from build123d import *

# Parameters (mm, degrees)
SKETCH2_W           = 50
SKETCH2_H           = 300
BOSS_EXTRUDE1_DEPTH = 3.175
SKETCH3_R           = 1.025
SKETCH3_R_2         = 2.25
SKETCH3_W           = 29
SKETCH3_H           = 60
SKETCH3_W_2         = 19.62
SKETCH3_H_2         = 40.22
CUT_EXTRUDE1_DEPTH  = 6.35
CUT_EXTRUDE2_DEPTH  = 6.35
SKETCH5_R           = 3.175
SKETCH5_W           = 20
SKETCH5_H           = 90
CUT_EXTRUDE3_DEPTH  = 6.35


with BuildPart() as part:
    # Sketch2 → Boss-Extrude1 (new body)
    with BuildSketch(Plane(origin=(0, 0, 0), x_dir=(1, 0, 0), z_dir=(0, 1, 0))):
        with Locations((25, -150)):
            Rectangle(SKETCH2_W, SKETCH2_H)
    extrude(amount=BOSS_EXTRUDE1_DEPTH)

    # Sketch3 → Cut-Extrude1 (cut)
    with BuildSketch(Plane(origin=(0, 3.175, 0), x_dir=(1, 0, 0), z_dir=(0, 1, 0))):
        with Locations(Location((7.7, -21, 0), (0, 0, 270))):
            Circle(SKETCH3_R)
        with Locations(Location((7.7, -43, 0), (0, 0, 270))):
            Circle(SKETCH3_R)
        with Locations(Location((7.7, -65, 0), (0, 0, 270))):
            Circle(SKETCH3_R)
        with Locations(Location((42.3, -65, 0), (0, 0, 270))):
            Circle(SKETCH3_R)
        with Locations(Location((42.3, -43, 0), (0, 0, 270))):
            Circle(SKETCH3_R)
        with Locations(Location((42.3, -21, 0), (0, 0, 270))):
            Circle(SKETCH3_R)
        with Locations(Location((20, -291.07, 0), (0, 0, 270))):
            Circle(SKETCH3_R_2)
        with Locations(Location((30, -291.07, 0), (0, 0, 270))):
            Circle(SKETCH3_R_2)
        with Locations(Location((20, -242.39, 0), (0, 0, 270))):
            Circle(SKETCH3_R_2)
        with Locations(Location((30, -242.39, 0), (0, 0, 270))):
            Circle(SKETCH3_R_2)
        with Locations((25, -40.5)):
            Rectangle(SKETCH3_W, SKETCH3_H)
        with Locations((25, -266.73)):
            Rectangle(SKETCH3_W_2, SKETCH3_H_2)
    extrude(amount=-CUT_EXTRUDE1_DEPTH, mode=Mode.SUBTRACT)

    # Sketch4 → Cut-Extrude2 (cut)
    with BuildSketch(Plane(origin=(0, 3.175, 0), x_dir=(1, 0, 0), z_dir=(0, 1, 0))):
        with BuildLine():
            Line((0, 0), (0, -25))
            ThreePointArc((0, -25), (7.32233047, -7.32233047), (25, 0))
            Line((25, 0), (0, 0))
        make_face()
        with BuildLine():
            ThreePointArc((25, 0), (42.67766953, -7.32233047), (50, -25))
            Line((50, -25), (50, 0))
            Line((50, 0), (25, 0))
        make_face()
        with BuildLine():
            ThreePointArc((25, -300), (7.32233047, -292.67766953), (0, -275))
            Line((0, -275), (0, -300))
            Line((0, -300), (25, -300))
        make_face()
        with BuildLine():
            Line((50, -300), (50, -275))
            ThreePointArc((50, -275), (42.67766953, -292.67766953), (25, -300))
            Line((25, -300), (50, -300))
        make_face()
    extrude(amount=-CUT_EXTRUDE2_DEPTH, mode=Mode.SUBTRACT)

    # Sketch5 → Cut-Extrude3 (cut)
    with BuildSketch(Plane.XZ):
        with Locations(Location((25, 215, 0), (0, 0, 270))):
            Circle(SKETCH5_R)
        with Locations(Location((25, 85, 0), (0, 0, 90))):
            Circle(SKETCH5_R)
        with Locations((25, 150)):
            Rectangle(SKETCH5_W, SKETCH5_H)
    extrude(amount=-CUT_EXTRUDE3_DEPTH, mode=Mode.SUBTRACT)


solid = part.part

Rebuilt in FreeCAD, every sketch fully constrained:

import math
import FreeCAD as App
import Part
import Sketcher

V = App.Vector

doc = App.newDocument("Part")
body = doc.addObject("PartDesign::Body", "Body")

sketch1 = doc.addObject("Sketcher::SketchObject", "Sketch")
body.addObject(sketch1)
sketch1.AttachmentSupport = (doc.XZ_Plane, [""])
sketch1.MapMode = "FlatFace"
sketch1.addGeometry([
    Part.LineSegment(V(0, 0, 0), V(0, 300, 0)),
    Part.LineSegment(V(0, 300, 0), V(50, 300, 0)),
    Part.LineSegment(V(50, 300, 0), V(50, 0, 0)),
    Part.LineSegment(V(50, 0, 0), V(0, 0, 0)),
], False)
sketch1.addConstraint([
    Sketcher.Constraint("Coincident", 0, 2, 1, 1),
    Sketcher.Constraint("Coincident", 1, 2, 2, 1),
    Sketcher.Constraint("Coincident", 2, 2, 3, 1),
    Sketcher.Constraint("Coincident", 3, 2, 0, 1),
    Sketcher.Constraint("Vertical", 0),
    Sketcher.Constraint("Horizontal", 1),
    Sketcher.Constraint("Vertical", 2),
    Sketcher.Constraint("Horizontal", 3),
    Sketcher.Constraint("Coincident", 3, 2, -1, 1),
    Sketcher.Constraint("DistanceX", 1, 1, 1, 2, 50.0),
    Sketcher.Constraint("DistanceY", 0, 1, 0, 2, 300.0),
])
pad1 = doc.addObject("PartDesign::Pad", "Pad")
body.addObject(pad1)
pad1.Profile = sketch1
pad1.Length = 3.175
pad1.Reversed = True

sketch2 = doc.addObject("Sketcher::SketchObject", "Sketch001")
body.addObject(sketch2)
sketch2.AttachmentSupport = (doc.XZ_Plane, [""])
sketch2.MapMode = "FlatFace"
sketch2.AttachmentOffset = App.Placement(V(0, 0, -3.175), App.Rotation())
sketch2.addGeometry([
    Part.Circle(V(7.7, 21, 0), V(0, 0, 1), 1),
    Part.Circle(V(7.7, 43, 0), V(0, 0, 1), 1),
    Part.Circle(V(7.7, 65, 0), V(0, 0, 1), 1),
    Part.Circle(V(42.3, 65, 0), V(0, 0, 1), 1),
    Part.Circle(V(42.3, 43, 0), V(0, 0, 1), 1),
    Part.Circle(V(42.3, 21, 0), V(0, 0, 1), 1),
    Part.Circle(V(20, 291.1, 0), V(0, 0, 1), 2.2),
    Part.Circle(V(30, 291.1, 0), V(0, 0, 1), 2.2),
    Part.Circle(V(20, 242.4, 0), V(0, 0, 1), 2.2),
    Part.Circle(V(30, 242.4, 0), V(0, 0, 1), 2.2),
    Part.LineSegment(V(10.5, 10.5, 0), V(10.5, 70.5, 0)),
    Part.LineSegment(V(10.5, 70.5, 0), V(39.5, 70.5, 0)),
    Part.LineSegment(V(39.5, 70.5, 0), V(39.5, 10.5, 0)),
    Part.LineSegment(V(39.5, 10.5, 0), V(10.5, 10.5, 0)),
    Part.LineSegment(V(15.2, 246.6, 0), V(15.2, 286.8, 0)),
    Part.LineSegment(V(15.2, 286.8, 0), V(34.8, 286.8, 0)),
    Part.LineSegment(V(34.8, 286.8, 0), V(34.8, 246.6, 0)),
    Part.LineSegment(V(34.8, 246.6, 0), V(15.2, 246.6, 0)),
], False)
sketch2.addConstraint([
    Sketcher.Constraint("Coincident", 10, 2, 11, 1),
    Sketcher.Constraint("Coincident", 11, 2, 12, 1),
    Sketcher.Constraint("Coincident", 12, 2, 13, 1),
    Sketcher.Constraint("Coincident", 13, 2, 10, 1),
    Sketcher.Constraint("Coincident", 14, 2, 15, 1),
    Sketcher.Constraint("Coincident", 15, 2, 16, 1),
    Sketcher.Constraint("Coincident", 16, 2, 17, 1),
    Sketcher.Constraint("Coincident", 17, 2, 14, 1),
    Sketcher.Constraint("Vertical", 10),
    Sketcher.Constraint("Horizontal", 11),
    Sketcher.Constraint("Vertical", 12),
    Sketcher.Constraint("Horizontal", 13),
    Sketcher.Constraint("Vertical", 14),
    Sketcher.Constraint("Horizontal", 15),
    Sketcher.Constraint("Vertical", 16),
    Sketcher.Constraint("Horizontal", 17),
    Sketcher.Constraint("Equal", 0, 1),
    Sketcher.Constraint("Equal", 1, 2),
    Sketcher.Constraint("Equal", 2, 3),
    Sketcher.Constraint("Equal", 3, 4),
    Sketcher.Constraint("Equal", 4, 5),
    Sketcher.Constraint("Equal", 6, 7),
    Sketcher.Constraint("Equal", 7, 8),
    Sketcher.Constraint("Equal", 8, 9),
    Sketcher.Constraint("Horizontal", 2, 3, 3, 3),
    Sketcher.Constraint("Horizontal", 1, 3, 4, 3),
    Sketcher.Constraint("Horizontal", 0, 3, 5, 3),
    Sketcher.Constraint("Horizontal", 6, 3, 7, 3),
    Sketcher.Constraint("Horizontal", 8, 3, 9, 3),
    Sketcher.Constraint("Vertical", 0, 3, 1, 3),
    Sketcher.Constraint("Vertical", 1, 3, 2, 3),
    Sketcher.Constraint("Vertical", 3, 3, 4, 3),
    Sketcher.Constraint("Vertical", 4, 3, 5, 3),
    Sketcher.Constraint("Vertical", 6, 3, 8, 3),
    Sketcher.Constraint("Vertical", 7, 3, 9, 3),
    Sketcher.Constraint("Diameter", 6, 4.5),
    Sketcher.Constraint("Diameter", 0, 2.05),
    Sketcher.Constraint("DistanceX", 11, 1, 11, 2, 29.0),
    Sketcher.Constraint("DistanceY", 10, 1, 10, 2, 60.0),
    Sketcher.Constraint("DistanceY", -1, 1, 0, 3, 21.0),
    Sketcher.Constraint("DistanceY", -1, 1, 1, 3, 43.0),
    Sketcher.Constraint("DistanceY", -1, 1, 2, 3, 65.0),
    Sketcher.Constraint("DistanceX", -1, 1, 6, 3, 20.0),
    Sketcher.Constraint("DistanceX", -1, 1, 7, 3, 30.0),
    Sketcher.Constraint("DistanceX", 15, 1, 15, 2, 19.62),
    Sketcher.Constraint("DistanceY", 14, 1, 14, 2, 40.22),
    Sketcher.Constraint("DistanceX", -1, 1, 0, 3, 7.7),
    Sketcher.Constraint("DistanceX", -1, 1, 3, 3, 42.3),
    Sketcher.Constraint("DistanceX", -1, 1, 10, 2, 10.5),
    Sketcher.Constraint("DistanceY", -1, 1, 10, 2, 70.5),
    Sketcher.Constraint("DistanceY", -1, 1, 6, 3, 291.07),
    Sketcher.Constraint("DistanceY", -1, 1, 8, 3, 242.39),
    Sketcher.Constraint("DistanceX", -1, 1, 14, 2, 15.19),
    Sketcher.Constraint("DistanceY", -1, 1, 14, 2, 286.84),
])
pocket1 = doc.addObject("PartDesign::Pocket", "Pocket")
body.addObject(pocket1)
pocket1.Profile = sketch2
pocket1.Length = 6.35
pocket1.Reversed = True

sketch3 = doc.addObject("Sketcher::SketchObject", "Sketch002")
body.addObject(sketch3)
sketch3.AttachmentSupport = (doc.XZ_Plane, [""])
sketch3.MapMode = "FlatFace"
sketch3.AttachmentOffset = App.Placement(V(0, 0, -3.175), App.Rotation())
sketch3.addGeometry([
    Part.LineSegment(V(0, 0, 0), V(0, 25, 0)),
    Part.ArcOfCircle(Part.Circle(V(25, 25, 0), V(0, 0, 1), 25), math.radians(180), math.radians(270)),
    Part.LineSegment(V(25, 0, 0), V(0, 0, 0)),
    Part.ArcOfCircle(Part.Circle(V(25, 25, 0), V(0, 0, 1), 25), math.radians(-90), math.radians(0)),
    Part.LineSegment(V(50, 25, 0), V(50, 0, 0)),
    Part.LineSegment(V(50, 0, 0), V(25, 0, 0)),
    Part.ArcOfCircle(Part.Circle(V(25, 275, 0), V(0, 0, 1), 25), math.radians(90), math.radians(180)),
    Part.LineSegment(V(0, 275, 0), V(0, 300, 0)),
    Part.LineSegment(V(0, 300, 0), V(25, 300, 0)),
    Part.LineSegment(V(50, 300, 0), V(50, 275, 0)),
    Part.ArcOfCircle(Part.Circle(V(25, 275, 0), V(0, 0, 1), 25), math.radians(0), math.radians(90)),
    Part.LineSegment(V(25, 300, 0), V(50, 300, 0)),
], False)
sketch3.addConstraint([
    Sketcher.Constraint("Tangent", 0, 2, 1, 1),
    Sketcher.Constraint("Tangent", 1, 2, 2, 1),
    Sketcher.Constraint("Coincident", 2, 2, 0, 1),
    Sketcher.Constraint("Tangent", 3, 2, 4, 1),
    Sketcher.Constraint("Coincident", 4, 2, 5, 1),
    Sketcher.Constraint("Tangent", 5, 2, 3, 1),
    Sketcher.Constraint("Tangent", 6, 2, 7, 1),
    Sketcher.Constraint("Coincident", 7, 2, 8, 1),
    Sketcher.Constraint("Tangent", 8, 2, 6, 1),
    Sketcher.Constraint("Tangent", 9, 2, 10, 1),
    Sketcher.Constraint("Tangent", 10, 2, 11, 1),
    Sketcher.Constraint("Coincident", 11, 2, 9, 1),
    Sketcher.Constraint("Vertical", 0),
    Sketcher.Constraint("Horizontal", 2),
    Sketcher.Constraint("Vertical", 4),
    Sketcher.Constraint("Horizontal", 5),
    Sketcher.Constraint("Vertical", 7),
    Sketcher.Constraint("Horizontal", 8),
    Sketcher.Constraint("Vertical", 9),
    Sketcher.Constraint("Horizontal", 11),
    Sketcher.Constraint("Coincident", 2, 2, -1, 1),
    Sketcher.Constraint("Coincident", 3, 3, 1, 3),
    Sketcher.Constraint("Coincident", 10, 3, 6, 3),
    Sketcher.Constraint("Equal", 1, 3),
    Sketcher.Constraint("Equal", 3, 6),
    Sketcher.Constraint("Equal", 6, 10),
    Sketcher.Constraint("PointOnObject", 6, 2, -2),
    Sketcher.Constraint("Radius", 1, 25.0),
    Sketcher.Constraint("DistanceY", -1, 1, 6, 3, 275.0),
])
pocket2 = doc.addObject("PartDesign::Pocket", "Pocket001")
body.addObject(pocket2)
pocket2.Profile = sketch3
pocket2.Length = 6.35
pocket2.Reversed = True

sketch4 = doc.addObject("Sketcher::SketchObject", "Sketch003")
body.addObject(sketch4)
sketch4.AttachmentSupport = (doc.XZ_Plane, [""])
sketch4.MapMode = "FlatFace"
sketch4.addGeometry([
    Part.Circle(V(25, 215, 0), V(0, 0, 1), 3.2),
    Part.Circle(V(25, 85, 0), V(0, 0, 1), 3.2),
    Part.LineSegment(V(15, 195, 0), V(15, 105, 0)),
    Part.LineSegment(V(15, 105, 0), V(35, 105, 0)),
    Part.LineSegment(V(35, 105, 0), V(35, 195, 0)),
    Part.LineSegment(V(35, 195, 0), V(15, 195, 0)),
], False)
sketch4.addConstraint([
    Sketcher.Constraint("Coincident", 2, 2, 3, 1),
    Sketcher.Constraint("Coincident", 3, 2, 4, 1),
    Sketcher.Constraint("Coincident", 4, 2, 5, 1),
    Sketcher.Constraint("Coincident", 5, 2, 2, 1),
    Sketcher.Constraint("Vertical", 2),
    Sketcher.Constraint("Horizontal", 3),
    Sketcher.Constraint("Vertical", 4),
    Sketcher.Constraint("Horizontal", 5),
    Sketcher.Constraint("Equal", 0, 1),
    Sketcher.Constraint("Vertical", 0, 3, 1, 3),
    Sketcher.Constraint("Diameter", 0, 6.35),
    Sketcher.Constraint("DistanceX", 3, 1, 3, 2, 20.0),
    Sketcher.Constraint("DistanceY", 2, 2, 2, 1, 90.0),
    Sketcher.Constraint("DistanceX", -1, 1, 0, 3, 25.0),
    Sketcher.Constraint("DistanceY", -1, 1, 0, 3, 215.0),
    Sketcher.Constraint("DistanceY", -1, 1, 1, 3, 85.0),
    Sketcher.Constraint("DistanceX", -1, 1, 2, 2, 15.0),
    Sketcher.Constraint("DistanceY", -1, 1, 2, 2, 105.0),
])
pocket3 = doc.addObject("PartDesign::Pocket", "Pocket002")
body.addObject(pocket3)
pocket3.Profile = sketch4
pocket3.Length = 6.35

doc.recompute()
